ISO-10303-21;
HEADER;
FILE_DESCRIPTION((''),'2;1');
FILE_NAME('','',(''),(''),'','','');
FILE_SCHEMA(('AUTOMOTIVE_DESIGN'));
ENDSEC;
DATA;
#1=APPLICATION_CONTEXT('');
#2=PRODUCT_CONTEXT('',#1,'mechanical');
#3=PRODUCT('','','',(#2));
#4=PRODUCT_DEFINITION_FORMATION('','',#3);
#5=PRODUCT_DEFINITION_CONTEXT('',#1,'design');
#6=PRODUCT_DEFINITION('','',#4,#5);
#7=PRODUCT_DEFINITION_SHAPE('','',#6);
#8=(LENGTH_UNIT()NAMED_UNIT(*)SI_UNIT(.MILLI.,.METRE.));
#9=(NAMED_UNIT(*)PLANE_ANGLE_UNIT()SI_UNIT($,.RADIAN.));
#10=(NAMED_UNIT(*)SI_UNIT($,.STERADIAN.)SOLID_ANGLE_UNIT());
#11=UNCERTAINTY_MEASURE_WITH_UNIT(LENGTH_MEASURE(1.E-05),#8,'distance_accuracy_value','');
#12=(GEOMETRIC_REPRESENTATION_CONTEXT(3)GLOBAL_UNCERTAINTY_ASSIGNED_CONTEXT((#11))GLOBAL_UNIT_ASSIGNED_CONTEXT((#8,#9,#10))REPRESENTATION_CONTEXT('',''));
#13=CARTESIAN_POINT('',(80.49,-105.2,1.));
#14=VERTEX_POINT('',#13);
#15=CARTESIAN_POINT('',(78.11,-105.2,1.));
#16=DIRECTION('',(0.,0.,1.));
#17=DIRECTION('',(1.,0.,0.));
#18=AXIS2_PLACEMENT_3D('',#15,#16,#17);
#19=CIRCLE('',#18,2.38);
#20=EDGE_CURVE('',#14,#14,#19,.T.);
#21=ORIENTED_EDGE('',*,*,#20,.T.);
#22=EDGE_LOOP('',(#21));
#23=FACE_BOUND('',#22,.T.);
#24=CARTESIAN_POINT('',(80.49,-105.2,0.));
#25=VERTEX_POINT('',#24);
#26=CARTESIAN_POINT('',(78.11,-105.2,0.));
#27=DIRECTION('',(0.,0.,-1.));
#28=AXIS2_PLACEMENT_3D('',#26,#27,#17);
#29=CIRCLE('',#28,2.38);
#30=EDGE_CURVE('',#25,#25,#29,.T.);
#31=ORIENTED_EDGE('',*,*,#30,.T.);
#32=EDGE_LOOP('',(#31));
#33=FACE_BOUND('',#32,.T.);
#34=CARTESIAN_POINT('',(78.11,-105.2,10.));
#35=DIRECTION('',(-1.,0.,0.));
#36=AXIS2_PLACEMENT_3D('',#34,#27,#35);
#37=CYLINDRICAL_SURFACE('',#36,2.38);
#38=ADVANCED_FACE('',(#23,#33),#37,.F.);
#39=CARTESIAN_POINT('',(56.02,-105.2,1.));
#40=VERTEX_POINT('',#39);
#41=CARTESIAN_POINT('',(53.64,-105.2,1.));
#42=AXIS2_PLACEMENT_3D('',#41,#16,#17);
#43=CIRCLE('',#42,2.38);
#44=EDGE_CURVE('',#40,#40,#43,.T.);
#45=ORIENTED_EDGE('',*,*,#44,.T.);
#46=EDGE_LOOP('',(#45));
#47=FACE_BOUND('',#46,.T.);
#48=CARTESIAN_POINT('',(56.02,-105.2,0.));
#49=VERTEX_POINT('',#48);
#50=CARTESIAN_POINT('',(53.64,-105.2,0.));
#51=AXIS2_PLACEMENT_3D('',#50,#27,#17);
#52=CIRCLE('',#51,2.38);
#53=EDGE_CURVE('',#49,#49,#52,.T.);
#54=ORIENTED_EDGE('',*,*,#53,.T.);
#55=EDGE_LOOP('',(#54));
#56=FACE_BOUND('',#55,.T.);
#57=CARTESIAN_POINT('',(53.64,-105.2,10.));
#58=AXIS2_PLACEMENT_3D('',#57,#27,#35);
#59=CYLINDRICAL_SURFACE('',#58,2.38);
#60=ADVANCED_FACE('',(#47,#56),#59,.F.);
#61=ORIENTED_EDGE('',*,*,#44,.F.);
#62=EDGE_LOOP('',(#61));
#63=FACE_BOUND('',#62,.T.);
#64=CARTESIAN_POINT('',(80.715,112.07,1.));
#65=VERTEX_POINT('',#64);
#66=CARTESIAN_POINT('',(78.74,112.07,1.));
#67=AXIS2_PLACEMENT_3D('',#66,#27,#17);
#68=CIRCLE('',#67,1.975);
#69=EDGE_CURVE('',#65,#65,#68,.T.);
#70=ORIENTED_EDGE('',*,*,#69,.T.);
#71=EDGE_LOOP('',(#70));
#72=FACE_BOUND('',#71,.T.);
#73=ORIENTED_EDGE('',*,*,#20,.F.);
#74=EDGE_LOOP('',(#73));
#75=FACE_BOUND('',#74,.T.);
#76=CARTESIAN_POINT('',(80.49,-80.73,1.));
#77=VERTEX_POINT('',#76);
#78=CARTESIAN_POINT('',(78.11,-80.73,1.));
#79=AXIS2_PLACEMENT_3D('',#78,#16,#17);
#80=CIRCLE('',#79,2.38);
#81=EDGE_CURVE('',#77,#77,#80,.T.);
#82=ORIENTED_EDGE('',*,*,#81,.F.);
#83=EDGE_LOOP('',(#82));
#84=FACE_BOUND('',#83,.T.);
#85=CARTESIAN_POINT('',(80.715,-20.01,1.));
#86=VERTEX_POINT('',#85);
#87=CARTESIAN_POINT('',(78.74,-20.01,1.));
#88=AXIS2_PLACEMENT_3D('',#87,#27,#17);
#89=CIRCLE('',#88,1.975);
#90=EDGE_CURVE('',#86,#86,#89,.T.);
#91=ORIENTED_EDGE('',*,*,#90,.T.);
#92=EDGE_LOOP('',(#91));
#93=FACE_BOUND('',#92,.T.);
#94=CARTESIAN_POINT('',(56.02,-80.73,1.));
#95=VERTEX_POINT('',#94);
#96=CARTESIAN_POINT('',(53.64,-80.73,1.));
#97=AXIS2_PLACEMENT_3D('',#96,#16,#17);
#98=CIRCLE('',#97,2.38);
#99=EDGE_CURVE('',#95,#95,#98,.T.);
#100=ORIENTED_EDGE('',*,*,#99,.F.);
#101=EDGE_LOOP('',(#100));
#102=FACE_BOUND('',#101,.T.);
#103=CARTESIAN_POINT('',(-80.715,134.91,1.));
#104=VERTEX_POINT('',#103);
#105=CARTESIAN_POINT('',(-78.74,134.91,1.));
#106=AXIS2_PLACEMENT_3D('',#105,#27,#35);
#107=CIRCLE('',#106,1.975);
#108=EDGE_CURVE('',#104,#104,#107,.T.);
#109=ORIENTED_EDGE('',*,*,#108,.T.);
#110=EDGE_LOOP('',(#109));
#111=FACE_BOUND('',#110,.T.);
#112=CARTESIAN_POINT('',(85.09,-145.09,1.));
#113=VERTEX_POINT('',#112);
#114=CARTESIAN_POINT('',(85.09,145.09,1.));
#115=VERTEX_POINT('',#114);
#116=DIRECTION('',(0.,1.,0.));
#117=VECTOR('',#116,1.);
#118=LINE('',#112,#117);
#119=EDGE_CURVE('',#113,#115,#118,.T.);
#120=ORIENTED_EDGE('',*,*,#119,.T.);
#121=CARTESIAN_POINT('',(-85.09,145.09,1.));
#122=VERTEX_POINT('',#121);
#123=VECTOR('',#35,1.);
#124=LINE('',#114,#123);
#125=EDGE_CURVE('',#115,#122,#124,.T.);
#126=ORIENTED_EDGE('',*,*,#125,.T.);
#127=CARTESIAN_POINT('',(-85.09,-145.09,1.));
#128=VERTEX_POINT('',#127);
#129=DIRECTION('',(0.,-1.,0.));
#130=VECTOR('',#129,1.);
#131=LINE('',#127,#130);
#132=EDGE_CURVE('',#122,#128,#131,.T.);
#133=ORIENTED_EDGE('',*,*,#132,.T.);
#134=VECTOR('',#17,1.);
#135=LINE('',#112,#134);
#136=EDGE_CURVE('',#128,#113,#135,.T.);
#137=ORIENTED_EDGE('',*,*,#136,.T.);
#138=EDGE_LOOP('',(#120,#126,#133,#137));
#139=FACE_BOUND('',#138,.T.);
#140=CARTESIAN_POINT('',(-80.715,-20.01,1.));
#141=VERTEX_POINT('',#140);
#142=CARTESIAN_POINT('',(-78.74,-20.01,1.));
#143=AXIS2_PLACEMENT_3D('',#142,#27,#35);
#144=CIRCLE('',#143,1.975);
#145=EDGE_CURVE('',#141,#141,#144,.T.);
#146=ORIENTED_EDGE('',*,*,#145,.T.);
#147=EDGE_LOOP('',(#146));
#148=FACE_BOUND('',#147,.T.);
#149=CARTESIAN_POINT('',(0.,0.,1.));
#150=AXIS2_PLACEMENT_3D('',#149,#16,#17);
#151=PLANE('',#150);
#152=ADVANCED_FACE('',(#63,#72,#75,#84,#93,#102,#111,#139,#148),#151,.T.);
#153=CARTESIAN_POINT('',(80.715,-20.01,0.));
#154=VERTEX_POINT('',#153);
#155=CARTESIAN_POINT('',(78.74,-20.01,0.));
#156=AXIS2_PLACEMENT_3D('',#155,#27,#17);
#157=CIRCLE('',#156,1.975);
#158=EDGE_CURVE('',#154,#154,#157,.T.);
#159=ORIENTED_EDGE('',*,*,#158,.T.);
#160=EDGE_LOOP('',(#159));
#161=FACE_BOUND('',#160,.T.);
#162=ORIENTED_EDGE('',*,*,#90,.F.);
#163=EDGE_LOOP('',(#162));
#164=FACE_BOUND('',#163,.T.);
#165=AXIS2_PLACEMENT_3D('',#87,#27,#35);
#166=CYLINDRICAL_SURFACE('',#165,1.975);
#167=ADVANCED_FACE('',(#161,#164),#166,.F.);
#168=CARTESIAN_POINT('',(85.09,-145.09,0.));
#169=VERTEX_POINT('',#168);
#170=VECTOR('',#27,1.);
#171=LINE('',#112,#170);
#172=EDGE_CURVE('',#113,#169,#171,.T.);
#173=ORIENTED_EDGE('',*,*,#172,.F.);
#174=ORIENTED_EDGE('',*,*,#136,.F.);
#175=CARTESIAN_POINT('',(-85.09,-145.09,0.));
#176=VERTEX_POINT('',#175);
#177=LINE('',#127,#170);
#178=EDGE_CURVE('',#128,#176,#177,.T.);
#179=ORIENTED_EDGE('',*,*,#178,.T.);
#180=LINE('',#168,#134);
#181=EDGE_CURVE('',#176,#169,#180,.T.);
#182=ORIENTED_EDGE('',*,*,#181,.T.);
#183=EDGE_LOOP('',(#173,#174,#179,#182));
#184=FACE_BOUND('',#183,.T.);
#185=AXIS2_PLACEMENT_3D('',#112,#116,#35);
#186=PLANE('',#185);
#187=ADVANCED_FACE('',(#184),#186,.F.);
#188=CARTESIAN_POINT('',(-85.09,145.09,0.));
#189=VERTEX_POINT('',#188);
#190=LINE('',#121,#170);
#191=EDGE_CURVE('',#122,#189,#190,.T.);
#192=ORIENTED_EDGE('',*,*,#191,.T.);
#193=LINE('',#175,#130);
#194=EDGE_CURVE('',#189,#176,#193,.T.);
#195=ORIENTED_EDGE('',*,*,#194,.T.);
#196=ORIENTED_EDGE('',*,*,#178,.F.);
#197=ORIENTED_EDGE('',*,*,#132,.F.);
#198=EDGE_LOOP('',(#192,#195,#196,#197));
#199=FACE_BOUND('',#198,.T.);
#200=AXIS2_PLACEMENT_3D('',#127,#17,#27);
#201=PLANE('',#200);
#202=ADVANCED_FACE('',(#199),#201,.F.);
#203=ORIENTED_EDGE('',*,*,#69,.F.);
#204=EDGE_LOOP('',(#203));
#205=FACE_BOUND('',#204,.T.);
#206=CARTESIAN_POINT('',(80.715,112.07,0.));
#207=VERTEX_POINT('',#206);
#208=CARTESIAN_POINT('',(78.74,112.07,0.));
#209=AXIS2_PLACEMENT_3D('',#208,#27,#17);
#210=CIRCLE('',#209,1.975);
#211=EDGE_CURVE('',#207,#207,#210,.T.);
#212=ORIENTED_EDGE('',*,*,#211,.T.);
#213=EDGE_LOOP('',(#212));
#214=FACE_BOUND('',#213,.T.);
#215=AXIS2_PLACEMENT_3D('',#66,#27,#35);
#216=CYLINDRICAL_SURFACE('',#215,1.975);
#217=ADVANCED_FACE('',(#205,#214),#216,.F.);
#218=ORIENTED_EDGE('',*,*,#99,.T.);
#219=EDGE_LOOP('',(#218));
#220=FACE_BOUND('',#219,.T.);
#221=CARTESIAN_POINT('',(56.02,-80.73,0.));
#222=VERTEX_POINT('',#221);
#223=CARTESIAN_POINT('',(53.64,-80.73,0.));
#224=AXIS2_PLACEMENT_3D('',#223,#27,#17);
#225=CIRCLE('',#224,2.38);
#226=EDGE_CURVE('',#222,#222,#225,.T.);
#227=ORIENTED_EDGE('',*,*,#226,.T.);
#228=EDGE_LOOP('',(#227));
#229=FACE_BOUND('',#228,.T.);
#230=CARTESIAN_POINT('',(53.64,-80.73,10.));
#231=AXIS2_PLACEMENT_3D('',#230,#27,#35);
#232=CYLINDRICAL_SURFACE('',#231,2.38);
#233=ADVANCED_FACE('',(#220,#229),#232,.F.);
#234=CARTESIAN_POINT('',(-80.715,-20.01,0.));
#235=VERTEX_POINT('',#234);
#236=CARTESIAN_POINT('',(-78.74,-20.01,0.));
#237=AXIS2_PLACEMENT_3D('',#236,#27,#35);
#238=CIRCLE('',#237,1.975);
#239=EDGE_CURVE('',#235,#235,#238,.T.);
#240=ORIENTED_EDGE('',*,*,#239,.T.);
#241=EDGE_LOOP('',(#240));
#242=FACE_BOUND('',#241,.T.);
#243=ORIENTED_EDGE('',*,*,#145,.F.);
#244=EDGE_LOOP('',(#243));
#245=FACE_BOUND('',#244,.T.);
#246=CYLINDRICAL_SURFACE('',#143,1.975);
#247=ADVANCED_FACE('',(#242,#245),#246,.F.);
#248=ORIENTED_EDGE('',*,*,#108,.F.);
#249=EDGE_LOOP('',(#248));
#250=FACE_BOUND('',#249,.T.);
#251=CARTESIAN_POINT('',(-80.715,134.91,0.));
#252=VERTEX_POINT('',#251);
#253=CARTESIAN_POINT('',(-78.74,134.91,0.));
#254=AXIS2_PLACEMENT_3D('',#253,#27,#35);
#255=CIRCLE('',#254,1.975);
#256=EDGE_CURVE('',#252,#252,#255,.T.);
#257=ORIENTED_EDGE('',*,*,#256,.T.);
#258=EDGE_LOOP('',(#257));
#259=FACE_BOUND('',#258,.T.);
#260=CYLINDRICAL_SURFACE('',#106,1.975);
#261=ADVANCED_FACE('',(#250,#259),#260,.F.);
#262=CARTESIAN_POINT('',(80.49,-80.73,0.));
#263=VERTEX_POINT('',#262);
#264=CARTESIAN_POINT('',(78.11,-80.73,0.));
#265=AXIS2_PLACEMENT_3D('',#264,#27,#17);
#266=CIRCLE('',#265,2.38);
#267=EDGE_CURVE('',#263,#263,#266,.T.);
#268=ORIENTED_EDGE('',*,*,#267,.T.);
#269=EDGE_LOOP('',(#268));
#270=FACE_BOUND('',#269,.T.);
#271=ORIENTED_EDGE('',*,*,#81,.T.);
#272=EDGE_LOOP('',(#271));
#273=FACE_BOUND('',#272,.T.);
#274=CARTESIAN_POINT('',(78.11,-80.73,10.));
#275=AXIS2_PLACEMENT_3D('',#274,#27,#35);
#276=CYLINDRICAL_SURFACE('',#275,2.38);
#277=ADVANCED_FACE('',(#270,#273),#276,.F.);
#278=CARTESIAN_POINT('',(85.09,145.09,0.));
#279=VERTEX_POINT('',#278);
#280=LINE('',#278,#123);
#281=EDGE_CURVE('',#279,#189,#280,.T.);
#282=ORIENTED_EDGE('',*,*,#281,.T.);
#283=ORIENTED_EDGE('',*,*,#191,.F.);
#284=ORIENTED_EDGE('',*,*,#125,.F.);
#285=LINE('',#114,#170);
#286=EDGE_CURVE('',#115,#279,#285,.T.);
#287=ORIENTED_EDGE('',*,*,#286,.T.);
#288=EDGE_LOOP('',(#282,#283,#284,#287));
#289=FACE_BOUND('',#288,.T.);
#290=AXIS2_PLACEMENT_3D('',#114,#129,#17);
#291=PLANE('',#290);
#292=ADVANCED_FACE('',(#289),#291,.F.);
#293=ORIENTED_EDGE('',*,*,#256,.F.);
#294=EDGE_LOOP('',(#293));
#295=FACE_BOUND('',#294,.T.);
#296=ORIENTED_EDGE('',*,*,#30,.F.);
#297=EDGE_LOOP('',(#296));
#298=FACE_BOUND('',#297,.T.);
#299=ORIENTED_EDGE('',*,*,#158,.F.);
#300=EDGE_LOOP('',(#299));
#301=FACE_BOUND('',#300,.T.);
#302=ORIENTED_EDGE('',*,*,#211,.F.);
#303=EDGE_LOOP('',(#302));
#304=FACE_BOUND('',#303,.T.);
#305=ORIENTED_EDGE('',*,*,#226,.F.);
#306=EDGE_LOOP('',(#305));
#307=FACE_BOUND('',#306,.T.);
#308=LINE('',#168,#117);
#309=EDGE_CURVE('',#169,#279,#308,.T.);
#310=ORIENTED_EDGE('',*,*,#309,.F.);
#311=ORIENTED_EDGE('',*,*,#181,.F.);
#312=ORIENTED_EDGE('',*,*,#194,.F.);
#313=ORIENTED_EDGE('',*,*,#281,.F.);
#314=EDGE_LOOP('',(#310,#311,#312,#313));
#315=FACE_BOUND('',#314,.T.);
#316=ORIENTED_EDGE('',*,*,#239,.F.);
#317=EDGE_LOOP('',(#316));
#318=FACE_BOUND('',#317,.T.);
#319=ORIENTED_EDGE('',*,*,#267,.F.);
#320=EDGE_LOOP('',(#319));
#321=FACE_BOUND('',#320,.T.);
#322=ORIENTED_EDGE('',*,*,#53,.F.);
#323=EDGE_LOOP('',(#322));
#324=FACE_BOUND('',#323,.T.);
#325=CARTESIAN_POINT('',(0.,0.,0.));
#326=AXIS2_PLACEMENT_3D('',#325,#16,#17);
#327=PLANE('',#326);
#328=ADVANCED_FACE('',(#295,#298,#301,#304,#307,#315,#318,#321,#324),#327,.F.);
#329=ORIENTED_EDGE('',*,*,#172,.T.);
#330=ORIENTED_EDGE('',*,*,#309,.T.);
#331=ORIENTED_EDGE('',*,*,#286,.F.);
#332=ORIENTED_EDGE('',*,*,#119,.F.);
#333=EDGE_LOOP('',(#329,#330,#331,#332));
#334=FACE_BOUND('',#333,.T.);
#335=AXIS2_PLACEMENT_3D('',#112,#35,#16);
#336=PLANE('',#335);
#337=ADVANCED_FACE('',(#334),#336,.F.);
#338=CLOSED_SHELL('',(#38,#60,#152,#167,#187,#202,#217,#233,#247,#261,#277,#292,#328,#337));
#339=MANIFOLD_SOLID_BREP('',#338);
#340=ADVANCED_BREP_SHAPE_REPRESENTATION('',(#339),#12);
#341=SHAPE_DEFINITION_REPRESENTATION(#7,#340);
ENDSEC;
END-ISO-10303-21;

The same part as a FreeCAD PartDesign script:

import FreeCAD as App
import Part
import Sketcher
Q = App.Units.Quantity

doc = App.newDocument("Part")
body = doc.addObject("PartDesign::Body", "Body")

# Sketch on XY plane
sketch1 = doc.addObject("Sketcher::SketchObject", "Sketch")
body.addObject(sketch1)
sketch1.AttachmentSupport = (doc.XY_Plane, [""])
sketch1.MapMode = "FlatFace"
sketch1.addGeometry([
    Part.LineSegment(App.Vector(-85, 145, 0), App.Vector(-85, -145, 0)),
    Part.LineSegment(App.Vector(-85, -145, 0), App.Vector(85, -145, 0)),
    Part.LineSegment(App.Vector(85, -145, 0), App.Vector(85, 145, 0)),
    Part.LineSegment(App.Vector(85, 145, 0), App.Vector(-85, 145, 0)),
], False)
sketch1.addConstraint([
    Sketcher.Constraint("Coincident", 0, 2, 1, 1),
    Sketcher.Constraint("Coincident", 1, 2, 2, 1),
    Sketcher.Constraint("Coincident", 2, 2, 3, 1),
    Sketcher.Constraint("Coincident", 3, 2, 0, 1),
    Sketcher.Constraint("Vertical", 0),
    Sketcher.Constraint("Horizontal", 1),
    Sketcher.Constraint("Vertical", 2),
    Sketcher.Constraint("Horizontal", 3),
    Sketcher.Constraint("Symmetric", 0, 2, 2, 2, -1, 1),
    Sketcher.Constraint("DistanceX", 1, 1, 1, 2, Q("170.18 mm")),
    Sketcher.Constraint("DistanceY", 0, 2, 0, 1, Q("290.18 mm")),
])
pad1 = doc.addObject("PartDesign::Pad", "Pad")
body.addObject(pad1)
pad1.Profile = sketch1
pad1.Length = 1

# Sketch on XY plane
sketch2 = doc.addObject("Sketcher::SketchObject", "Sketch001")
body.addObject(sketch2)
sketch2.AttachmentSupport = (doc.XY_Plane, [""])
sketch2.MapMode = "FlatFace"
sketch2.addGeometry([
    Part.Circle(App.Vector(78.7, 112.1, 0), App.Vector(0, 0, 1), 2),
    Part.Circle(App.Vector(-78.7, 134.9, 0), App.Vector(0, 0, 1), 2),
    Part.Circle(App.Vector(-78.7, -20, 0), App.Vector(0, 0, 1), 2),
    Part.Circle(App.Vector(78.7, -20, 0), App.Vector(0, 0, 1), 2),
], False)
sketch2.addConstraint([
    Sketcher.Constraint("Equal", 0, 1),
    Sketcher.Constraint("Equal", 1, 2),
    Sketcher.Constraint("Equal", 2, 3),
    Sketcher.Constraint("Symmetric", 2, 3, 3, 3, -2),
    Sketcher.Constraint("Vertical", 1, 3, 2, 3),
    Sketcher.Constraint("Vertical", 0, 3, 3, 3),
    Sketcher.Constraint("Diameter", 0, Q("3.95 mm")),
    Sketcher.Constraint("DistanceX", -1, 1, 0, 3, Q("78.74 mm")),
    Sketcher.Constraint("DistanceY", -1, 1, 0, 3, Q("112.07 mm")),
    Sketcher.Constraint("DistanceY", -1, 1, 1, 3, Q("134.91 mm")),
    Sketcher.Constraint("DistanceY", 2, 3, -1, 1, Q("20.01 mm")),
])
pocket1 = doc.addObject("PartDesign::Pocket", "Pocket")
body.addObject(pocket1)
pocket1.Profile = sketch2
pocket1.Length = 1
pocket1.Reversed = True

# Sketch on XY plane
sketch3 = doc.addObject("Sketcher::SketchObject", "Sketch002")
body.addObject(sketch3)
sketch3.AttachmentSupport = (doc.XY_Plane, [""])
sketch3.MapMode = "FlatFace"
sketch3.addGeometry([
    Part.Circle(App.Vector(78.1, -105.2, 0), App.Vector(0, 0, 1), 2.4),
    Part.Circle(App.Vector(53.6, -105.2, 0), App.Vector(0, 0, 1), 2.4),
    Part.Circle(App.Vector(53.6, -80.7, 0), App.Vector(0, 0, 1), 2.4),
    Part.Circle(App.Vector(78.1, -80.7, 0), App.Vector(0, 0, 1), 2.4),
], False)
sketch3.addConstraint([
    Sketcher.Constraint("Equal", 0, 1),
    Sketcher.Constraint("Equal", 1, 2),
    Sketcher.Constraint("Equal", 2, 3),
    Sketcher.Constraint("Horizontal", 0, 3, 1, 3),
    Sketcher.Constraint("Horizontal", 2, 3, 3, 3),
    Sketcher.Constraint("Vertical", 1, 3, 2, 3),
    Sketcher.Constraint("Vertical", 0, 3, 3, 3),
    Sketcher.Constraint("Diameter", 0, Q("4.76 mm")),
    Sketcher.Constraint("DistanceY", 0, 3, -1, 1, Q("105.2 mm")),
    Sketcher.Constraint("DistanceX", -1, 1, 0, 3, Q("78.11 mm")),
    Sketcher.Constraint("DistanceX", -1, 1, 1, 3, Q("53.64 mm")),
    Sketcher.Constraint("DistanceY", 2, 3, -1, 1, Q("80.73 mm")),
])
pocket2 = doc.addObject("PartDesign::Pocket", "Pocket001")
body.addObject(pocket2)
pocket2.Profile = sketch3
pocket2.Length = 10
pocket2.Reversed = True

doc.recompute()
